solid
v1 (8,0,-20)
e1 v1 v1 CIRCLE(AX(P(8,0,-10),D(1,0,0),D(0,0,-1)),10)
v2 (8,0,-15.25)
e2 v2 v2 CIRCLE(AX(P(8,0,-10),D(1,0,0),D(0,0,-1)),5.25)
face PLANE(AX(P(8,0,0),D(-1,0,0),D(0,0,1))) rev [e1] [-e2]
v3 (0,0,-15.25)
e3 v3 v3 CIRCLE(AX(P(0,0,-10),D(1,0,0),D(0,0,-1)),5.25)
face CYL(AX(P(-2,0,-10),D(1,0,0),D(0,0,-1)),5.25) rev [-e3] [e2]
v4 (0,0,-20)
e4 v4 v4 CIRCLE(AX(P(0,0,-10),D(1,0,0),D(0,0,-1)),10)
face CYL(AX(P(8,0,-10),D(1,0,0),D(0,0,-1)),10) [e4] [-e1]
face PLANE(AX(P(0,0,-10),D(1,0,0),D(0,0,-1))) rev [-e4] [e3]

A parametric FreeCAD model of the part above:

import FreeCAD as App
import Part
import Sketcher
from FreeCAD import Vector
Q = App.Units.Quantity

doc = App.newDocument("Part")
body = doc.addObject("PartDesign::Body", "Body")

# Sketch on XZ plane
sketch1 = doc.addObject("Sketcher::SketchObject", "Sketch")
body.addObject(sketch1)
sketch1.AttachmentSupport = (doc.XZ_Plane, [""])
sketch1.MapMode = "FlatFace"
sketch1.addGeometry([
    Part.LineSegment(Vector(0, -10, 0), Vector(0, 0, 0)),
    Part.LineSegment(Vector(0, 0, 0), Vector(8, 0, 0)),
    Part.LineSegment(Vector(8, 0, 0), Vector(8, -10, 0)),
    Part.LineSegment(Vector(8, -10, 0), Vector(0, -10, 0)),
], False)
sketch1.addGeometry(Part.LineSegment(Vector(8, -10, 0), Vector(0, -10, 0)), True)  # axis
sketch1.addConstraint([
    Sketcher.Constraint("Coincident", 0, 2, 1, 1),
    Sketcher.Constraint("Coincident", 1, 2, 2, 1),
    Sketcher.Constraint("Coincident", 2, 2, 3, 1),
    Sketcher.Constraint("Coincident", 3, 2, 0, 1),
    Sketcher.Constraint("Vertical", 0),
    Sketcher.Constraint("Horizontal", 1),
    Sketcher.Constraint("Vertical", 2),
    Sketcher.Constraint("Horizontal", 3),
    Sketcher.Constraint("Horizontal", 4),
    Sketcher.Constraint("Coincident", 0, 2, -1, 1),
    Sketcher.Constraint("Coincident", 4, 1, 2, 2),
    Sketcher.Constraint("PointOnObject", 4, 2, -2),
    Sketcher.Constraint("DistanceX", 1, 1, 1, 2, Q("8 mm")),
    Sketcher.Constraint("DistanceY", 0, 1, 0, 2, Q("10 mm")),
])
revolution = doc.addObject("PartDesign::Revolution", "Revolution")
body.addObject(revolution)
revolution.Profile = sketch1
revolution.ReferenceAxis = (sketch1, ["Axis0"])
revolution.Angle = 360

# Sketch on YZ plane
sketch2 = doc.addObject("Sketcher::SketchObject", "Sketch001")
body.addObject(sketch2)
sketch2.AttachmentSupport = (doc.YZ_Plane, [""])
sketch2.MapMode = "FlatFace"
sketch2.AttachmentOffset = App.Placement(Vector(0, 0, 8), App.Rotation())
sketch2.addGeometry(Part.Circle(Vector(0, -10, 0), Vector(0, 0, 1), 5.25), False)
sketch2.addConstraint([
    Sketcher.Constraint("PointOnObject", 0, 3, -2),
    Sketcher.Constraint("Diameter", 0, Q("10.5 mm")),
    Sketcher.Constraint("DistanceY", 0, 3, -1, 1, Q("10 mm")),
])
pocket1 = doc.addObject("PartDesign::Pocket", "Pocket")
body.addObject(pocket1)
pocket1.Profile = sketch2
pocket1.Length = 10

doc.recompute()
